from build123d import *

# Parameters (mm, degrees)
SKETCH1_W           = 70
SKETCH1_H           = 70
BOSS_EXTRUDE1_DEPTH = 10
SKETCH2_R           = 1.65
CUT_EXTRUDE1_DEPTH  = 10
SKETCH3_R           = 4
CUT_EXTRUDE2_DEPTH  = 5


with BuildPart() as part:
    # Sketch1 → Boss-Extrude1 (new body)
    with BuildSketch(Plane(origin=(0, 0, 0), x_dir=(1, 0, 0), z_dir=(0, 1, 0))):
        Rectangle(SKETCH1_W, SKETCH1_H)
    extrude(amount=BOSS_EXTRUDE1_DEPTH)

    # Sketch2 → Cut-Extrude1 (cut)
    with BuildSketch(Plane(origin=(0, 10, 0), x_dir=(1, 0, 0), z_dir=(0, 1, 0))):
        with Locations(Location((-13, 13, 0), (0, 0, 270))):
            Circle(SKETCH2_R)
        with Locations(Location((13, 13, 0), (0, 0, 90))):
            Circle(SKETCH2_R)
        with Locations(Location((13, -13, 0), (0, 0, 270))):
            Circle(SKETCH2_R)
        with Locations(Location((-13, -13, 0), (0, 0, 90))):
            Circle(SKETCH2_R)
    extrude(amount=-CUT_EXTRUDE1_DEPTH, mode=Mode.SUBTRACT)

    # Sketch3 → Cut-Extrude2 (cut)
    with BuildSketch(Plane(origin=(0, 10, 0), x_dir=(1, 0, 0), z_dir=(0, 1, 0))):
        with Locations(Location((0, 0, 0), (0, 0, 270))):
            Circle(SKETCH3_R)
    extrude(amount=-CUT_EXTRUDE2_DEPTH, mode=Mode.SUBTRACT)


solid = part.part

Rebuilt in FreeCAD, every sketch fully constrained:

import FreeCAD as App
import Part
import Sketcher
from FreeCAD import Vector

doc = App.newDocument("Part")
params = doc.addObject("Spreadsheet::Sheet", "Params")
for row, (alias, value) in enumerate([
    ("sketch1_width", "70 mm"),
    ("pad1_length", "10 mm"),
    ("sketch2_diameter", "3.3 mm"),
    ("pocket1_length", "10 mm"),
    ("sketch3_diameter", "8 mm"),
    ("pocket2_length", "5 mm"),
], start=1):
    params.set(f"A{row}", alias)
    params.set(f"B{row}", "=" + value)
    params.setAlias(f"B{row}", alias)

body = doc.addObject("PartDesign::Body", "Body")

# Sketch on XZ plane
sketch1 = body.newObject("Sketcher::SketchObject", "Sketch")
sketch1.AttachmentSupport = (doc.getObject("XZ_Plane"), [""])
sketch1.MapMode = "FlatFace"
sketch1.addGeometry([
    Part.LineSegment(Vector(-35, -35, 0), Vector(-35, 35, 0)),
    Part.LineSegment(Vector(-35, 35, 0), Vector(35, 35, 0)),
    Part.LineSegment(Vector(35, 35, 0), Vector(35, -35, 0)),
    Part.LineSegment(Vector(35, -35, 0), Vector(-35, -35, 0)),
], False)
sketch1.addConstraint([
    Sketcher.Constraint("Coincident", 0, 2, 1, 1),
    Sketcher.Constraint("Coincident", 1, 2, 2, 1),
    Sketcher.Constraint("Coincident", 2, 2, 3, 1),
    Sketcher.Constraint("Coincident", 3, 2, 0, 1),
    Sketcher.Constraint("Vertical", 0),
    Sketcher.Constraint("Horizontal", 1),
    Sketcher.Constraint("Vertical", 2),
    Sketcher.Constraint("Horizontal", 3),
    Sketcher.Constraint("Symmetric", 0, 2, 2, 2, -1, 1),
    Sketcher.Constraint("Equal", 3, 0),
    Sketcher.Constraint("DistanceX", 1, 1, 1, 2, 70.0),
])
sketch1.setExpression("Constraints[10]", "Params.sketch1_width")
pad1 = body.newObject("PartDesign::Pad", "Pad")
pad1.Profile = sketch1
pad1.setExpression("Length", "Params.pad1_length")
pad1.Reversed = True

# Sketch on XZ plane
sketch2 = body.newObject("Sketcher::SketchObject", "Sketch001")
sketch2.AttachmentSupport = (doc.getObject("XZ_Plane"), [""])
sketch2.MapMode = "FlatFace"
sketch2.AttachmentOffset = App.Placement(Vector(0, 0, -10), App.Rotation())
sketch2.addGeometry([
    Part.Circle(Vector(-13, -13, 0), Vector(0, 0, 1), 1.6),
    Part.Circle(Vector(13, -13, 0), Vector(0, 0, 1), 1.6),
    Part.Circle(Vector(13, 13, 0), Vector(0, 0, 1), 1.6),
    Part.Circle(Vector(-13, 13, 0), Vector(0, 0, 1), 1.6),
], False)
sketch2.addConstraint([
    Sketcher.Constraint("Equal", 0, 1),
    Sketcher.Constraint("Equal", 1, 2),
    Sketcher.Constraint("Equal", 2, 3),
    Sketcher.Constraint("Symmetric", 0, 3, 2, 3, -1, 1),
    Sketcher.Constraint("Symmetric", 1, 3, 3, 3, -1, 1),
    Sketcher.Constraint("Symmetric", 0, 3, 1, 3, -2),
    Sketcher.Constraint("Diameter", 0, 3.3),
    Sketcher.Constraint("DistanceX", 0, 3, -1, 1, 13.0),
    Sketcher.Constraint("DistanceY", 0, 3, -1, 1, 13.0),
])
sketch2.setExpression("Constraints[6]", "Params.sketch2_diameter")
pocket1 = body.newObject("PartDesign::Pocket", "Pocket")
pocket1.Profile = sketch2
pocket1.setExpression("Length", "Params.pocket1_length")
pocket1.Reversed = True

# Sketch on XZ plane
sketch3 = body.newObject("Sketcher::SketchObject", "Sketch002")
sketch3.AttachmentSupport = (doc.getObject("XZ_Plane"), [""])
sketch3.MapMode = "FlatFace"
sketch3.AttachmentOffset = App.Placement(Vector(0, 0, -10), App.Rotation())
sketch3.addGeometry(Part.Circle(Vector(0, 0, 0), Vector(0, 0, 1), 4), False)
sketch3.addConstraint([
    Sketcher.Constraint("Coincident", 0, 3, -1, 1),
    Sketcher.Constraint("Diameter", 0, 8.0),
])
sketch3.setExpression("Constraints[1]", "Params.sketch3_diameter")
pocket2 = body.newObject("PartDesign::Pocket", "Pocket001")
pocket2.Profile = sketch3
pocket2.setExpression("Length", "Params.pocket2_length")
pocket2.Reversed = True

doc.recompute()
